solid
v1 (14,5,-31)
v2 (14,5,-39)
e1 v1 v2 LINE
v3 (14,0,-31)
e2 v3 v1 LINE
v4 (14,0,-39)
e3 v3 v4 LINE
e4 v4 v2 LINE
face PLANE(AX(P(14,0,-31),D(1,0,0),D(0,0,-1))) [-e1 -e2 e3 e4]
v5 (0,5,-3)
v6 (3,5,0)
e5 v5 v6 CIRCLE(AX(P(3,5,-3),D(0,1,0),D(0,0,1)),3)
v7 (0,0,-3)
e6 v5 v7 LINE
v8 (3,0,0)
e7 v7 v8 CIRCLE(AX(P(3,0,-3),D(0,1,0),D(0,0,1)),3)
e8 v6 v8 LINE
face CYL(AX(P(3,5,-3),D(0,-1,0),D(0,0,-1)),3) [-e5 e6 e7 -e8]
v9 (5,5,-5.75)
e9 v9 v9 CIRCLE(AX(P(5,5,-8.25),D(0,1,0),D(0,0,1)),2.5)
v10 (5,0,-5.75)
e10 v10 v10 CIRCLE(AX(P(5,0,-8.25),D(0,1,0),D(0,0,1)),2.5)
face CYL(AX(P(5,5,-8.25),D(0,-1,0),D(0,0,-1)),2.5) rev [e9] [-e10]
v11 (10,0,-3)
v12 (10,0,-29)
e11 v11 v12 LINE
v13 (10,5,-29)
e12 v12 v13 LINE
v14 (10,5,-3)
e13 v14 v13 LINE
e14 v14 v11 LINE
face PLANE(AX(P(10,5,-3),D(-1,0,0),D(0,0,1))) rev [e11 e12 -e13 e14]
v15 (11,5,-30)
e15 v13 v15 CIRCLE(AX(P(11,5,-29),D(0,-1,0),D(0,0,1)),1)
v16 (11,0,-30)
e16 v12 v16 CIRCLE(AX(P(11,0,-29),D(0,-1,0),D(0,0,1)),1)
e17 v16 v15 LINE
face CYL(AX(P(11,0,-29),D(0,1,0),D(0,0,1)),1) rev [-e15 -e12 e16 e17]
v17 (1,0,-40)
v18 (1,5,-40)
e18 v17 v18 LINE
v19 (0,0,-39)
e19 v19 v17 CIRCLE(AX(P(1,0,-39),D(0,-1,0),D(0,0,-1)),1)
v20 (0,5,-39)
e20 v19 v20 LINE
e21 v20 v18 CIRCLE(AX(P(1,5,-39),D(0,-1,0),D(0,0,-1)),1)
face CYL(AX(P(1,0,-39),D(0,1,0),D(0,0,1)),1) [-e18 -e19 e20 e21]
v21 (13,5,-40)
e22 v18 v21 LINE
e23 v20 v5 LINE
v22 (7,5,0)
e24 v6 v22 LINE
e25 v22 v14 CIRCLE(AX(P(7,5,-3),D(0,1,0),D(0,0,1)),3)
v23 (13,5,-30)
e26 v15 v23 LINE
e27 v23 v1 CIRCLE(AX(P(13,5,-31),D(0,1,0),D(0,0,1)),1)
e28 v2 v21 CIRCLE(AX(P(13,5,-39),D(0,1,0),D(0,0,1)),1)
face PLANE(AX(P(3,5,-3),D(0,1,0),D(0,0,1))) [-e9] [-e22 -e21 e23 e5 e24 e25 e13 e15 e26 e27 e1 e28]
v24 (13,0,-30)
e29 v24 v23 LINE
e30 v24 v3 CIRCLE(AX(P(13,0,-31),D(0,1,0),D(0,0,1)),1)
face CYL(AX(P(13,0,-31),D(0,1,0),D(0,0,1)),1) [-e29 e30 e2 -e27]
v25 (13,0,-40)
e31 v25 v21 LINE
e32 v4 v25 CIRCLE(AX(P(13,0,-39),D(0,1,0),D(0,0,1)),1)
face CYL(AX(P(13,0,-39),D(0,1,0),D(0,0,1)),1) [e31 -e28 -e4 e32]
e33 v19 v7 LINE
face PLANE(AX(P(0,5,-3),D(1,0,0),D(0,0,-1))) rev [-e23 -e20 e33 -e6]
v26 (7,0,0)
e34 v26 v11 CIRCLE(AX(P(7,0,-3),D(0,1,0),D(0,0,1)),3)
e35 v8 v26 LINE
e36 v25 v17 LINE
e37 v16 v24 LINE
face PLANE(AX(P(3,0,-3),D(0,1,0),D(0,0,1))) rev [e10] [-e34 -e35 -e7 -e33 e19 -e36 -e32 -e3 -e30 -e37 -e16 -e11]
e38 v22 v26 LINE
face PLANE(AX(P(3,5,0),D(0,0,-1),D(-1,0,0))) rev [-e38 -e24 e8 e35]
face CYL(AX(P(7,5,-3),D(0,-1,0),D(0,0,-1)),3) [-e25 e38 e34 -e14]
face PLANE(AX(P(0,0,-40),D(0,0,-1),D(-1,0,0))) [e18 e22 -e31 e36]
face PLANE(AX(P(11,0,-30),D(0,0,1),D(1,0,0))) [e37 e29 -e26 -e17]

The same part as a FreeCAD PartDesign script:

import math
import FreeCAD as App
import Part
import Sketcher
from FreeCAD import Vector


def add_polygon(sketch, points):
    """Adds a closed chain of lines whose ends are joined by coincident constraints."""
    first, n = sketch.GeometryCount, len(points)
    for a, b in zip(points, points[1:] + points[:1]):
        sketch.addGeometry(Part.LineSegment(App.Vector(*a, 0), App.Vector(*b, 0)), False)
    for i in range(n):
        sketch.addConstraint(Sketcher.Constraint("Coincident", first + i, 2, first + (i + 1) % n, 1))

doc = App.newDocument("Part")
body = doc.addObject("PartDesign::Body", "Body")

# Sketch on XZ plane
sketch1 = body.newObject("Sketcher::SketchObject", "Sketch")
sketch1.AttachmentSupport = (doc.getObject("XZ_Plane"), [""])
sketch1.MapMode = "FlatFace"
sketch1.addGeometry([
    Part.LineSegment(Vector(3, 0, 0), Vector(7, 0, 0)),  # 0
    Part.ArcOfCircle(Part.Circle(Vector(7, -3, 0), Vector(0, 0, 1), 3), math.radians(0), math.radians(90)),  # 1
    Part.LineSegment(Vector(10, -3, 0), Vector(10, -30, 0)),  # 2
    Part.LineSegment(Vector(10, -30, 0), Vector(0, -30, 0)),  # 3
    Part.LineSegment(Vector(0, -30, 0), Vector(0, -3, 0)),  # 4
    Part.ArcOfCircle(Part.Circle(Vector(3, -3, 0), Vector(0, 0, 1), 3), math.radians(90), math.radians(180)),  # 5
    Part.Circle(Vector(5, -8.2, 0), Vector(0, 0, 1), 2.5),  # 6
], False)
sketch1.addConstraint([
    Sketcher.Constraint("Tangent", 0, 2, 1, 2),
    Sketcher.Constraint("Tangent", 1, 1, 2, 1),
    Sketcher.Constraint("Coincident", 2, 2, 3, 1),
    Sketcher.Constraint("Coincident", 3, 2, 4, 1),
    Sketcher.Constraint("Tangent", 4, 2, 5, 2),
    Sketcher.Constraint("Tangent", 5, 1, 0, 1),
    Sketcher.Constraint("Horizontal", 0),
    Sketcher.Constraint("Vertical", 2),
    Sketcher.Constraint("Horizontal", 3),
    Sketcher.Constraint("Vertical", 4),
    Sketcher.Constraint("Equal", 1, 5),
    Sketcher.Constraint("PointOnObject", 0, 2, -1),
    Sketcher.Constraint("PointOnObject", 3, 2, -2),
    Sketcher.Constraint("Diameter", 6, 5.0),
    Sketcher.Constraint("Radius", 1, 3.0),
    Sketcher.Constraint("DistanceX", 0, 1, 0, 2, 4.0),
    Sketcher.Constraint("DistanceY", 2, 2, 2, 1, 27.0),
    Sketcher.Constraint("DistanceX", -1, 1, 6, 3, 5.0),
    Sketcher.Constraint("DistanceY", 6, 3, -1, 1, 8.25),
])
pad1 = body.newObject("PartDesign::Pad", "Pad")
pad1.Profile = sketch1
pad1.Length = 5
pad1.Reversed = True

# Sketch on XY plane
sketch2 = body.newObject("Sketcher::SketchObject", "Sketch001")
sketch2.AttachmentSupport = (doc.getObject("XY_Plane"), [""])
sketch2.MapMode = "FlatFace"
sketch2.AttachmentOffset = App.Placement(Vector(0, 0, -30), App.Rotation())
add_polygon(sketch2, [(10, 5), (10, 0), (0, 0), (0, 5)])  # lines 0-3
sketch2.addConstraint([
    Sketcher.Constraint("Vertical", 0),
    Sketcher.Constraint("Horizontal", 1),
    Sketcher.Constraint("Vertical", 2),
    Sketcher.Constraint("Horizontal", 3),
    Sketcher.Constraint("Coincident", 1, 2, -1, 1),
    Sketcher.Constraint("DistanceX", 1, 2, 1, 1, 10.0),
    Sketcher.Constraint("DistanceY", 0, 2, 0, 1, 5.0),
])
pad2 = body.newObject("PartDesign::Pad", "Pad001")
pad2.Profile = sketch2
pad2.Length = 10
pad2.Reversed = True

# Sketch on XZ plane
sketch3 = body.newObject("Sketcher::SketchObject", "Sketch002")
sketch3.AttachmentSupport = (doc.getObject("XZ_Plane"), [""])
sketch3.MapMode = "FlatFace"
sketch3.AttachmentOffset = App.Placement(Vector(0, 0, -5), App.Rotation())
sketch3.addGeometry([
    Part.LineSegment(Vector(13, -40, 0), Vector(10, -40, 0)),  # 0
    Part.LineSegment(Vector(10, -40, 0), Vector(10, -29, 0)),  # 1
    Part.ArcOfCircle(Part.Circle(Vector(11, -29, 0), Vector(0, 0, 1), 1), math.radians(-180), math.radians(-90)),  # 2
    Part.LineSegment(Vector(11, -30, 0), Vector(13, -30, 0)),  # 3
    Part.ArcOfCircle(Part.Circle(Vector(13, -31, 0), Vector(0, 0, 1), 1), math.radians(0), math.radians(90)),  # 4
    Part.LineSegment(Vector(14, -31, 0), Vector(14, -39, 0)),  # 5
    Part.ArcOfCircle(Part.Circle(Vector(13, -39, 0), Vector(0, 0, 1), 1), math.radians(-90), math.radians(0)),  # 6
], False)
sketch3.addConstraint([
    Sketcher.Constraint("Coincident", 0, 2, 1, 1),
    Sketcher.Constraint("Tangent", 1, 2, 2, 1),
    Sketcher.Constraint("Tangent", 2, 2, 3, 1),
    Sketcher.Constraint("Tangent", 3, 2, 4, 2),
    Sketcher.Constraint("Tangent", 4, 1, 5, 1),
    Sketcher.Constraint("Tangent", 5, 2, 6, 2),
    Sketcher.Constraint("Tangent", 6, 1, 0, 1),
    Sketcher.Constraint("Horizontal", 0),
    Sketcher.Constraint("Vertical", 1),
    Sketcher.Constraint("Horizontal", 3),
    Sketcher.Constraint("Vertical", 5),
    Sketcher.Constraint("Equal", 2, 4),
    Sketcher.Constraint("Equal", 4, 6),
    Sketcher.Constraint("Radius", 2, 1.0),
    Sketcher.Constraint("DistanceX", 0, 2, 0, 1, 3.0),
    Sketcher.Constraint("DistanceY", 1, 1, 1, 2, 11.0),
    Sketcher.Constraint("DistanceX", -1, 1, 2, 3, 11.0),
    Sketcher.Constraint("DistanceY", 2, 3, -1, 1, 29.0),
])
pad3 = body.newObject("PartDesign::Pad", "Pad002")
pad3.Profile = sketch3
pad3.Length = 5

# Sketch on XZ plane
sketch4 = body.newObject("Sketcher::SketchObject", "Sketch003")
sketch4.AttachmentSupport = (doc.getObject("XZ_Plane"), [""])
sketch4.MapMode = "FlatFace"
sketch4.AttachmentOffset = App.Placement(Vector(0, 0, -5), App.Rotation())
sketch4.addGeometry([
    Part.LineSegment(Vector(0, -38.893, 0), Vector(0, -39, 0)),  # 0
    Part.ArcOfCircle(Part.Circle(Vector(1, -39, 0), Vector(0, 0, 1), 1), math.radians(-180), math.radians(-90)),  # 1
    Part.LineSegment(Vector(1, -40, 0), Vector(1.042, -40, 0)),  # 2
    Part.LineSegment(Vector(1.042, -40, 0), Vector(0.949, -40.295, 0)),  # 3
    Part.LineSegment(Vector(0.949, -40.295, 0), Vector(-0.497, -40.246, 0)),  # 4
    Part.LineSegment(Vector(-0.497, -40.246, 0), Vector(-0.497, -39.412, 0)),  # 5
    Part.LineSegment(Vector(-0.497, -39.412, 0), Vector(0, -38.893, 0)),  # 6
], False)
sketch4.addConstraint([
    Sketcher.Constraint("Tangent", 0, 2, 1, 1),
    Sketcher.Constraint("Tangent", 1, 2, 2, 1),
    Sketcher.Constraint("Coincident", 2, 2, 3, 1),
    Sketcher.Constraint("Coincident", 3, 2, 4, 1),
    Sketcher.Constraint("Coincident", 4, 2, 5, 1),
    Sketcher.Constraint("Coincident", 5, 2, 6, 1),
    Sketcher.Constraint("Coincident", 6, 2, 0, 1),
    Sketcher.Constraint("Vertical", 0),
    Sketcher.Constraint("Horizontal", 2),
    Sketcher.Constraint("Vertical", 5),
    Sketcher.Constraint("PointOnObject", 0, 2, -2),
    Sketcher.Constraint("Radius", 1, 1.0),
    Sketcher.Constraint("DistanceY", 1, 3, -1, 1, 39.0),
    Sketcher.Constraint("DistanceX", 2, 1, 2, 2, 0.042018),
    Sketcher.Constraint("DistanceY", 0, 2, 0, 1, 0.107368),
    Sketcher.Constraint("DistanceY", 5, 1, 5, 2, 0.833303),
    Sketcher.Constraint("DistanceY", 5, 2, -1, 1, 39.412221),
    Sketcher.Constraint("DistanceX", 4, 2, 2, 2, 1.53916),
    Sketcher.Constraint("Distance", 3, 0.308916),
    Sketcher.Constraint("Distance", 4, 1.446856),
])
pocket1 = body.newObject("PartDesign::Pocket", "Pocket")
pocket1.Profile = sketch4
pocket1.Type = "ThroughAll"
pocket1.Reversed = True

doc.recompute()
